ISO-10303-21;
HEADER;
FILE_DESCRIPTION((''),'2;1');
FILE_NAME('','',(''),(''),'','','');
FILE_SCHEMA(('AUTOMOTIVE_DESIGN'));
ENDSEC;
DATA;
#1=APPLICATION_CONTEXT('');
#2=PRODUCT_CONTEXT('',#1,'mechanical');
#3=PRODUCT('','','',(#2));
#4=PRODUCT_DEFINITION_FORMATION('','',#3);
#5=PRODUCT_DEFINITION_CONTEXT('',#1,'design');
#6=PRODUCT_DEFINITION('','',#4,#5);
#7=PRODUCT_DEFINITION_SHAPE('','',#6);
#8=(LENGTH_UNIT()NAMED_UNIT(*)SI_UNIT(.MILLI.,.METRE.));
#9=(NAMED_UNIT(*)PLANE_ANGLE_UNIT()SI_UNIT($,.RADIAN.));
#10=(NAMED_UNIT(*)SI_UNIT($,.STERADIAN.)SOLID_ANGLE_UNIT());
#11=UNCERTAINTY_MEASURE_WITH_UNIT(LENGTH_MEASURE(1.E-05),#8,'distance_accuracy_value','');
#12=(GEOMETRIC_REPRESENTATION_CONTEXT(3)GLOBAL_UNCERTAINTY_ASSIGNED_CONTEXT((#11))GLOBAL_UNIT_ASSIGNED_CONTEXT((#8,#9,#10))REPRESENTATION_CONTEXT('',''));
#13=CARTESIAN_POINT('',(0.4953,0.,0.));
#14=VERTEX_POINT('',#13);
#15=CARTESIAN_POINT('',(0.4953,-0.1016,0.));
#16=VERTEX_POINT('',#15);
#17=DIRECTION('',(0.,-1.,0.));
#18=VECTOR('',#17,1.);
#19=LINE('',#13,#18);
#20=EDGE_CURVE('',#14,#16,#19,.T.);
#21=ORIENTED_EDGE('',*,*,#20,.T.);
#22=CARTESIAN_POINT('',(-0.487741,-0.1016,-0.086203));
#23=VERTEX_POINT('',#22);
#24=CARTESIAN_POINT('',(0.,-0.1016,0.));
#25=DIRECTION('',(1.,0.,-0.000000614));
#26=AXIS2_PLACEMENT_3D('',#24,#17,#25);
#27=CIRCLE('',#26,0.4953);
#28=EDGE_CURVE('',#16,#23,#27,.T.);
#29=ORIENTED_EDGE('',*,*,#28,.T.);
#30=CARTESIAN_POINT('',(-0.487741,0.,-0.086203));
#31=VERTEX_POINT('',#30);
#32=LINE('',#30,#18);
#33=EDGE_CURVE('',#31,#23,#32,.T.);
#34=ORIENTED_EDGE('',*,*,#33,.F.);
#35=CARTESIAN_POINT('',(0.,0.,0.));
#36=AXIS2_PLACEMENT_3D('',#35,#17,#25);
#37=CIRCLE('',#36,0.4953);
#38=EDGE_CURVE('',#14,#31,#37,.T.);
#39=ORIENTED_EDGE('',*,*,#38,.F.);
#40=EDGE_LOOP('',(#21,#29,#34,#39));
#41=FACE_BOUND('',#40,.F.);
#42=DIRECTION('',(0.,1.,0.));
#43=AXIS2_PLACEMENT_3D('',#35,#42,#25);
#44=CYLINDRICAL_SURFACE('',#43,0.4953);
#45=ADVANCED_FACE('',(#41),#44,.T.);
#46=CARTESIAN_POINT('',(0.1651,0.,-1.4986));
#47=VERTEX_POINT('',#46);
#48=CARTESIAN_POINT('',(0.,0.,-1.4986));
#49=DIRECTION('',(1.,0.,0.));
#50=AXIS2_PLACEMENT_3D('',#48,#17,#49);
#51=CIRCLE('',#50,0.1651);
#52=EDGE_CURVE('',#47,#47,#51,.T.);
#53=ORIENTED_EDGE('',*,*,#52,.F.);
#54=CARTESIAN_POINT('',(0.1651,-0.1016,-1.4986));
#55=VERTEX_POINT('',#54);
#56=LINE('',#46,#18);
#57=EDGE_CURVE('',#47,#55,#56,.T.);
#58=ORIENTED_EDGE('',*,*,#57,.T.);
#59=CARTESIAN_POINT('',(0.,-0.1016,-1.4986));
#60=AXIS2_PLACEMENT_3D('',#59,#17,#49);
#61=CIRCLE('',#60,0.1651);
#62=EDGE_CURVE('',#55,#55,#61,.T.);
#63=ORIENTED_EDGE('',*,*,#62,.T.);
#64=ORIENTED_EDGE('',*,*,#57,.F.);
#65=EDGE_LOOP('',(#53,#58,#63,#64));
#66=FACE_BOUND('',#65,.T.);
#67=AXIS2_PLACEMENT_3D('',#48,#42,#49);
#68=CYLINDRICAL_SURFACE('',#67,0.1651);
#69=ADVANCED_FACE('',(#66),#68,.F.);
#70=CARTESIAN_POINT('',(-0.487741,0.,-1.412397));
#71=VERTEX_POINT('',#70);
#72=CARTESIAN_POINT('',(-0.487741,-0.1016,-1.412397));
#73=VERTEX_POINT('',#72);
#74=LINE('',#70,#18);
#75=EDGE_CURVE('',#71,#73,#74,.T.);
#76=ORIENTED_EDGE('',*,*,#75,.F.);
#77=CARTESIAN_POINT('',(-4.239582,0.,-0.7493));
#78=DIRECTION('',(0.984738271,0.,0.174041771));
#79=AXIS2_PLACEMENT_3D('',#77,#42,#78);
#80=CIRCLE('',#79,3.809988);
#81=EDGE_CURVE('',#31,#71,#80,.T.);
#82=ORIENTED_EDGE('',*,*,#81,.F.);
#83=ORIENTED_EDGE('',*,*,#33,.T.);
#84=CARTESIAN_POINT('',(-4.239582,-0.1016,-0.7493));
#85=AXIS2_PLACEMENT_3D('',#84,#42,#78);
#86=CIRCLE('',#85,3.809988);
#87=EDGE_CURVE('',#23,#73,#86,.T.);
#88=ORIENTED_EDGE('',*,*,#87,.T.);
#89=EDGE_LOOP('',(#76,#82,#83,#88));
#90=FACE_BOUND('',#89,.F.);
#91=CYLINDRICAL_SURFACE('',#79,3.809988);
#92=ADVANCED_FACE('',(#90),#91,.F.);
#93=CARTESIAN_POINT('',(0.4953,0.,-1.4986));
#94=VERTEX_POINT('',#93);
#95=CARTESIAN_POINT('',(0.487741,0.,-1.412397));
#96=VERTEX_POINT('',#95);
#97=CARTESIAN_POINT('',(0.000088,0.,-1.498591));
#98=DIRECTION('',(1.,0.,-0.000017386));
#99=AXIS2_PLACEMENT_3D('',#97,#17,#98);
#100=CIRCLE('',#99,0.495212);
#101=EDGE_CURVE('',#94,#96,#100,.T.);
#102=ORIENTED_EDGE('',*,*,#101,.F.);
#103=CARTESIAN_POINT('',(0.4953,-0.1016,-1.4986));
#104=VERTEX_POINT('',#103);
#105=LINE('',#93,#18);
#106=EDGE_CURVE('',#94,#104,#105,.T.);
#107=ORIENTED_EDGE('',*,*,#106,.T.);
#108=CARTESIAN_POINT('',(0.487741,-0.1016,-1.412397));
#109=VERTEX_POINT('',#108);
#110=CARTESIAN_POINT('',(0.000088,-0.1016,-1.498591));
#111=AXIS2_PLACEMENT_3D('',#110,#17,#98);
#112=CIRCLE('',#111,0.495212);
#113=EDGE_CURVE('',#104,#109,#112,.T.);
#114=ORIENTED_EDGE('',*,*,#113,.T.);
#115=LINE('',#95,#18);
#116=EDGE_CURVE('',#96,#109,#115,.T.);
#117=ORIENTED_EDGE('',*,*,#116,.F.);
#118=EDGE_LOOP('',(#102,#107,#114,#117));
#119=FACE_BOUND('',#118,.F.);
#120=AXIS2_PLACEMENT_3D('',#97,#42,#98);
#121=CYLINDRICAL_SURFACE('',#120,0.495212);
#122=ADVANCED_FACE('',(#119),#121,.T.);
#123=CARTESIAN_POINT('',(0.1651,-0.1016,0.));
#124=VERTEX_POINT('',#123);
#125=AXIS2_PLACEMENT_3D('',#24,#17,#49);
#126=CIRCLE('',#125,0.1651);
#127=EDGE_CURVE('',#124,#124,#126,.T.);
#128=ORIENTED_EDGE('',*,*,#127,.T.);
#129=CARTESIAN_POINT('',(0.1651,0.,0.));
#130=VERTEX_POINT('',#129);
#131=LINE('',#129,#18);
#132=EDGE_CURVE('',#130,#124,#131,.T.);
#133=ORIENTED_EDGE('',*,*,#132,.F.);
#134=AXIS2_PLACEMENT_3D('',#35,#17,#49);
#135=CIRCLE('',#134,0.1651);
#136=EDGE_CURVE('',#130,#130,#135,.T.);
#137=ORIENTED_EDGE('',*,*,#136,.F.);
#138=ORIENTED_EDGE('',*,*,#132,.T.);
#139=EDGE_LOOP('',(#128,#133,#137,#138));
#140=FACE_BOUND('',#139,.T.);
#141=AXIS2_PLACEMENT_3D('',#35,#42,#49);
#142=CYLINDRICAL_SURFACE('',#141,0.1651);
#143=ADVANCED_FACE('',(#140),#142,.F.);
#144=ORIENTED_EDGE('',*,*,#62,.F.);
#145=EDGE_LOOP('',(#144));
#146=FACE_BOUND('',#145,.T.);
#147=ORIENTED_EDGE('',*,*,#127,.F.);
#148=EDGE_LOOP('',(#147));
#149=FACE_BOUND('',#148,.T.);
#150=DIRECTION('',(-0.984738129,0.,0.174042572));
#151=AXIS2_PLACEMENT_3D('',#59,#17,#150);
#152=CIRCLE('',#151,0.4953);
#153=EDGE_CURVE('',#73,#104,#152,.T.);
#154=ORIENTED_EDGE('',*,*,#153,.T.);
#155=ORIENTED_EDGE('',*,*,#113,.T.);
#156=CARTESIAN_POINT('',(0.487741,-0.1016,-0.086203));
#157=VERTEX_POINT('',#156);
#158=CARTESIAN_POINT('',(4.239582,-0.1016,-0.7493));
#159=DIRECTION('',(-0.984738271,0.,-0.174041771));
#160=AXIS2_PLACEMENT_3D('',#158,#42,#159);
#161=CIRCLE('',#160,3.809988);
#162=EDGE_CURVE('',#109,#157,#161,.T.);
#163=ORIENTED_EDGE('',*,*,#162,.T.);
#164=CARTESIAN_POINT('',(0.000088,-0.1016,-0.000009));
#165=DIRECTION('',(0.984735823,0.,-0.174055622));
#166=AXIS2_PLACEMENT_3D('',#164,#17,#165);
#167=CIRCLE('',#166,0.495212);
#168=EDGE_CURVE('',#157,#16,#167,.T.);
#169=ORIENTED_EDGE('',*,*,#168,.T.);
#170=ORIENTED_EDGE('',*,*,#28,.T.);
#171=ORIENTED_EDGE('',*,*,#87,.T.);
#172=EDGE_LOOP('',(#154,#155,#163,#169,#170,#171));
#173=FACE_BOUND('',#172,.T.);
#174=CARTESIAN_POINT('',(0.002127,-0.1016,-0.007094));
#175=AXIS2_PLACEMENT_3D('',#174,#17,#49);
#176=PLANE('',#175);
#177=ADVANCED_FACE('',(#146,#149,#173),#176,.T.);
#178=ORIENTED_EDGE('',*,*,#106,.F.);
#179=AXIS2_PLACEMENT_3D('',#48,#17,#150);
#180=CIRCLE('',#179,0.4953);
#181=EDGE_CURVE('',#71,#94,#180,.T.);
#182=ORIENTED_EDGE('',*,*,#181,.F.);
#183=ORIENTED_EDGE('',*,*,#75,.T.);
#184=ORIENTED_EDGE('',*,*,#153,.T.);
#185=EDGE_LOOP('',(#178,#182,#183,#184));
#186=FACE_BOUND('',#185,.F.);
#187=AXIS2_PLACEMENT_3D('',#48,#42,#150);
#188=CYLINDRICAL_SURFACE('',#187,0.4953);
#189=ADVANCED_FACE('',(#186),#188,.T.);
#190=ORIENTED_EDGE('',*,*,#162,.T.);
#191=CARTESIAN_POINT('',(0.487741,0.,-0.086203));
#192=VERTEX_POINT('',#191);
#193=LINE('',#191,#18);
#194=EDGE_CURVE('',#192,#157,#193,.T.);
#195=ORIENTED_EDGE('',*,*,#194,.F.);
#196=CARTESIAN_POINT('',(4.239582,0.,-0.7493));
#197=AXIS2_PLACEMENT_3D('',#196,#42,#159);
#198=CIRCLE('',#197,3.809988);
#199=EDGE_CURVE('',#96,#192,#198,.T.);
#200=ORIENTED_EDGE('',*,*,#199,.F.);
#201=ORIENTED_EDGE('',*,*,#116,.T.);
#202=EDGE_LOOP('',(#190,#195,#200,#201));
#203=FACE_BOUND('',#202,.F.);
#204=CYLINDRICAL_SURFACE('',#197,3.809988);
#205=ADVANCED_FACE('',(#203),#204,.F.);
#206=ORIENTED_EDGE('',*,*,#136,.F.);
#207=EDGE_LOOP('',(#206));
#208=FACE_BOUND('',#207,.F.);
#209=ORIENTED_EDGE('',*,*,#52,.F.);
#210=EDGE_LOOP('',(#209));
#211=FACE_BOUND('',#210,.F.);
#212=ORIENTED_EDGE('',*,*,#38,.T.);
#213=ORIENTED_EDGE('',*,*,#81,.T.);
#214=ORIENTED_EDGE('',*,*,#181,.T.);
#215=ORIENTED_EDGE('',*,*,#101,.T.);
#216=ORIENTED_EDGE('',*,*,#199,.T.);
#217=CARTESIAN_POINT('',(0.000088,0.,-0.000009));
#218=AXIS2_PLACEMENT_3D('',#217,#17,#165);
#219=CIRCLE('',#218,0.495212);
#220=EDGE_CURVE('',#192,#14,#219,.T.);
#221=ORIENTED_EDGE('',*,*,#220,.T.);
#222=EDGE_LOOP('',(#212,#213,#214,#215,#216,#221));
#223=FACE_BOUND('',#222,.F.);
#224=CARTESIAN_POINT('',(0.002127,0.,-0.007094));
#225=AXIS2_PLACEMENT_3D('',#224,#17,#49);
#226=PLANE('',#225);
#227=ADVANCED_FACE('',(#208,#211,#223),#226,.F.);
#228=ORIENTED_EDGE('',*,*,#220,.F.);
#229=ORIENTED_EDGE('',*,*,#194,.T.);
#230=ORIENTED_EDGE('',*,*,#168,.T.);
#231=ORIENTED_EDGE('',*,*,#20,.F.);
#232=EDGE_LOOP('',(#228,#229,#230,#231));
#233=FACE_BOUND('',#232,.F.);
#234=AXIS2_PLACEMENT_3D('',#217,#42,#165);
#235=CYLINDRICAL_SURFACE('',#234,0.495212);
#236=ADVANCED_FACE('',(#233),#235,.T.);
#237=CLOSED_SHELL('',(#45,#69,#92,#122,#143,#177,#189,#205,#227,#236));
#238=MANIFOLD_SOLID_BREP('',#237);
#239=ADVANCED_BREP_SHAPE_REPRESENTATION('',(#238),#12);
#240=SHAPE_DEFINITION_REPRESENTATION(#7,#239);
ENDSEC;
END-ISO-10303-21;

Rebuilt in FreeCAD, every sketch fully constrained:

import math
import FreeCAD as App
import Part
import Sketcher

V = App.Vector
Q = App.Units.Quantity

doc = App.newDocument("Part")
body = doc.addObject("PartDesign::Body", "Body")

sketch1 = body.newObject("Sketcher::SketchObject", "Sketch")
sketch1.AttachmentSupport = (doc.getObject("XZ_Plane"), [""])
sketch1.MapMode = "FlatFace"
sketch1.addGeometry([
    Part.ArcOfCircle(Part.Circle(V(0, 0, 0), V(0, 0, 1), 0.5), math.radians(-10.02), math.radians(0)),
    Part.ArcOfCircle(Part.Circle(V(0, 0, 0), V(0, 0, 1), 0.5), math.radians(0), math.radians(190)),
    Part.ArcOfCircle(Part.Circle(V(-4.24, -0.75, 0), V(0, 0, 1), 3.81), math.radians(-10), math.radians(10)),
    Part.ArcOfCircle(Part.Circle(V(0, -1.5, 0), V(0, 0, 1), 0.5), math.radians(170), math.radians(360)),
    Part.ArcOfCircle(Part.Circle(V(0, -1.5, 0), V(0, 0, 1), 0.5), math.radians(0), math.radians(10.02)),
    Part.ArcOfCircle(Part.Circle(V(4.24, -0.75, 0), V(0, 0, 1), 3.81), math.radians(170), math.radians(190)),
    Part.Circle(V(0, -1.5, 0), V(0, 0, 1), 0.17),
    Part.Circle(V(0, 0, 0), V(0, 0, 1), 0.17),
], False)
sketch1.addConstraint([
    Sketcher.Constraint("Coincident", 0, 2, 1, 1),
    Sketcher.Constraint("Tangent", 1, 2, 2, 2),
    Sketcher.Constraint("Tangent", 2, 1, 3, 1),
    Sketcher.Constraint("Coincident", 3, 2, 4, 1),
    Sketcher.Constraint("Coincident", 4, 2, 5, 2),
    Sketcher.Constraint("Coincident", 5, 1, 0, 1),
    Sketcher.Constraint("Coincident", 1, 3, -1, 1),
    Sketcher.Constraint("Coincident", 7, 3, -1, 1),
    Sketcher.Constraint("Coincident", 6, 3, 3, 3),
    Sketcher.Constraint("Equal", 1, 3),
    Sketcher.Constraint("Equal", 0, 4),
    Sketcher.Constraint("Equal", 2, 5),
    Sketcher.Constraint("Equal", 6, 7),
    Sketcher.Constraint("Symmetric", 2, 3, 5, 3, -2),
    Sketcher.Constraint("PointOnObject", 3, 3, -2),
    Sketcher.Constraint("PointOnObject", 0, 2, -1),
    Sketcher.Constraint("Horizontal", 6, 3, 3, 2),
    Sketcher.Constraint("Horizontal", 2, 1, 4, 2),
    Sketcher.Constraint("Horizontal", 1, 2, 5, 1),
    Sketcher.Constraint("Diameter", 6, Q("0.013 in")),
    Sketcher.Constraint("Radius", 1, Q("0.0195 in")),
    Sketcher.Constraint("DistanceY", 3, 3, -1, 1, Q("0.059 in")),
    Sketcher.Constraint("Radius", 0, Q("0.495212 mm")),
    Sketcher.Constraint("Radius", 2, Q("3.809988 mm")),
])
pad1 = body.newObject("PartDesign::Pad", "Pad")
pad1.Profile = sketch1
pad1.Length = Q("0.004 in")

doc.recompute()
